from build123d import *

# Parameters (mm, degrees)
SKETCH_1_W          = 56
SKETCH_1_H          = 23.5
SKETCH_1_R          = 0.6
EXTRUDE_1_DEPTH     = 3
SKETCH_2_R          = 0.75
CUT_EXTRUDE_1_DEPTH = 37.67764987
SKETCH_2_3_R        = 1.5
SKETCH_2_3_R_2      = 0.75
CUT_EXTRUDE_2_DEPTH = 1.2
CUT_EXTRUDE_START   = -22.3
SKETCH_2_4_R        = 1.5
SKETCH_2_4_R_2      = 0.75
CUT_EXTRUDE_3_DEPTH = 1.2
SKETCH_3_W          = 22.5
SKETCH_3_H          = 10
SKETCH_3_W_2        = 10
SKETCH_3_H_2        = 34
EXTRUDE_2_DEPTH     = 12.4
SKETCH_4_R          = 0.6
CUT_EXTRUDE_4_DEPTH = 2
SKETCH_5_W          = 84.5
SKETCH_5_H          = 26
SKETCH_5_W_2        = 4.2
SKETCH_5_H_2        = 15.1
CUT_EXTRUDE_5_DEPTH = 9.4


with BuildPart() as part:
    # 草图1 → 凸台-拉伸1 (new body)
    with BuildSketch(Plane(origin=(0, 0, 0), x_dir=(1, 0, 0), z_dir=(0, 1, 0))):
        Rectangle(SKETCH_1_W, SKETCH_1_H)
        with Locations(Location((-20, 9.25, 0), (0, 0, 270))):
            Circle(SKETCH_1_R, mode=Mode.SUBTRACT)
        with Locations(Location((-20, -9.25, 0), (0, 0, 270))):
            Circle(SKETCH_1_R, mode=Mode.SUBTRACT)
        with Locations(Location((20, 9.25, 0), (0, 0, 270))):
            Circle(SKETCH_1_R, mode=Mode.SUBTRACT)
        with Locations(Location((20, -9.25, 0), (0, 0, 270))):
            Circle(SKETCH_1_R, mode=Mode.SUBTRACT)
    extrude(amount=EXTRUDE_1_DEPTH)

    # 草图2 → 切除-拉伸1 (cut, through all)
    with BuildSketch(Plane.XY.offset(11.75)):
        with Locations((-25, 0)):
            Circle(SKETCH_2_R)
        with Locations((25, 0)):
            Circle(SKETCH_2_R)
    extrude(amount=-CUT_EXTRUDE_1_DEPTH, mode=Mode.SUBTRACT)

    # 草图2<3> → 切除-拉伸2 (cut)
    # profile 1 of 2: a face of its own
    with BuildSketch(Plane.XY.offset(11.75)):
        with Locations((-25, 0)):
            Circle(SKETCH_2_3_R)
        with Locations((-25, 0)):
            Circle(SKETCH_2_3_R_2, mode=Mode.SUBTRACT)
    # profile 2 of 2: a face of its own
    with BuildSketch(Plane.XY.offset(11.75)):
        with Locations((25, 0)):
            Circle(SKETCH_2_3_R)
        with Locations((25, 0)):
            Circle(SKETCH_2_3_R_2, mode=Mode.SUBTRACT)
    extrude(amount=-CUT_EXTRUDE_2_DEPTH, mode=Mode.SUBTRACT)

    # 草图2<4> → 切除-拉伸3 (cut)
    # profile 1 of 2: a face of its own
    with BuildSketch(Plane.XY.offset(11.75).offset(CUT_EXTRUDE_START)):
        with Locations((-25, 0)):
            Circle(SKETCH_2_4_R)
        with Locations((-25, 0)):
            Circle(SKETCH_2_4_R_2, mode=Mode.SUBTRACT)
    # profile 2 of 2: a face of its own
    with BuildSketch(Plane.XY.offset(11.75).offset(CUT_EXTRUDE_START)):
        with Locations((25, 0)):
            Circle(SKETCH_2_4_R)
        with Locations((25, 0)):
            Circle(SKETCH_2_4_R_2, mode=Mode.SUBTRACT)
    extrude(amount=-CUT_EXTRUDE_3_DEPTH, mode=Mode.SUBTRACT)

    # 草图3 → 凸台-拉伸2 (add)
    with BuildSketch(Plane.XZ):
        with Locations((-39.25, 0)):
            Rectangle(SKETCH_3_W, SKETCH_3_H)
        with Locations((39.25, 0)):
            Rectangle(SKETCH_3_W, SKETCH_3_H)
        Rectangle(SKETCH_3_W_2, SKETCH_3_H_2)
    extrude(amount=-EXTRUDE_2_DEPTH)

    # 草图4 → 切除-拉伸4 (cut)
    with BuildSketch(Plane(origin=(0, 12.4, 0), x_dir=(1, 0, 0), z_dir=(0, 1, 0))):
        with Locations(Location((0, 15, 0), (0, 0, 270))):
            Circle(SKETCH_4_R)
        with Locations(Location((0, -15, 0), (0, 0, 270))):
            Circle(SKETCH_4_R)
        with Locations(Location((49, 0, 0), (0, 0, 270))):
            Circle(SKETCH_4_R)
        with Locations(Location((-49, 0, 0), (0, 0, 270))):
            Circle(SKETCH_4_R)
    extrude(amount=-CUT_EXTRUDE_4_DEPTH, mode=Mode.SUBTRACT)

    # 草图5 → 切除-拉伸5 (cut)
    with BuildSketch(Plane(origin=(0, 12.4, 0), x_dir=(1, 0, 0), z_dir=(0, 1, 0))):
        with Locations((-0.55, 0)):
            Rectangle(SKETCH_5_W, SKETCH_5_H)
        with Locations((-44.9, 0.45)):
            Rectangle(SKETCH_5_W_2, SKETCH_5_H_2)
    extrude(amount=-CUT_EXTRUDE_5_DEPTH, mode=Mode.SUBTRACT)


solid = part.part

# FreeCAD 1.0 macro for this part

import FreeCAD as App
import Part
import Sketcher
Q = App.Units.Quantity

doc = App.newDocument("Part")
params = doc.addObject("Spreadsheet::Sheet", "Params")
for row, (alias, value) in enumerate([
    ("sketch1_diameter", "1.2 mm"),
    ("sketch1_width", "56 mm"),
    ("sketch1_height", "23.5 mm"),
    ("pad1_length", "3 mm"),
    ("sketch2_diameter", "1.5 mm"),
    ("sketch3_diameter", "3 mm"),
    ("sketch3_diameter2", "1.5 mm"),
    ("pocket2_length", "1.2 mm"),
    ("sketch4_diameter", "3 mm"),
    ("sketch4_diameter2", "1.5 mm"),
    ("pocket3_length", "1.2 mm"),
    ("sketch5_width", "10 mm"),
    ("sketch5_height", "34 mm"),
    ("sketch5_width2", "22.5 mm"),
    ("pad2_length", "12.4 mm"),
    ("sketch6_diameter", "1.2 mm"),
    ("pocket4_length", "2 mm"),
    ("sketch7_height", "26 mm"),
    ("sketch7_height2", "5 mm"),
    ("sketch7_width", "84.5 mm"),
    ("sketch7_width2", "4.2 mm"),
    ("sketch7_height3", "5.9 mm"),
    ("pocket5_length", "9.4 mm"),
], start=1):
    params.set(f"A{row}", alias)
    params.set(f"B{row}", "=" + value)
    params.setAlias(f"B{row}", alias)

body = doc.addObject("PartDesign::Body", "Body")

# Sketch on XZ plane
sketch1 = body.newObject("Sketcher::SketchObject", "Sketch")
sketch1.AttachmentSupport = (doc.getObject("XZ_Plane"), [""])
sketch1.MapMode = "FlatFace"
sketch1.addGeometry(Part.LineSegment(App.Vector(-28, -11.8, 0), App.Vector(-28, 11.8, 0)), False)
sketch1.addGeometry(Part.LineSegment(App.Vector(-28, 11.8, 0), App.Vector(28, 11.8, 0)), False)
sketch1.addGeometry(Part.LineSegment(App.Vector(28, 11.8, 0), App.Vector(28, -11.8, 0)), False)
sketch1.addGeometry(Part.LineSegment(App.Vector(28, -11.8, 0), App.Vector(-28, -11.8, 0)), False)
sketch1.addGeometry(Part.Circle(App.Vector(-20, 9.2, 0), App.Vector(0, 0, 1), 0.6), False)
sketch1.addGeometry(Part.Circle(App.Vector(20, 9.2, 0), App.Vector(0, 0, 1), 0.6), False)
sketch1.addGeometry(Part.Circle(App.Vector(-20, -9.2, 0), App.Vector(0, 0, 1), 0.6), False)
sketch1.addGeometry(Part.Circle(App.Vector(20, -9.2, 0), App.Vector(0, 0, 1), 0.6), False)
sketch1.addConstraint(Sketcher.Constraint("Coincident", 0, 2, 1, 1))
sketch1.addConstraint(Sketcher.Constraint("Coincident", 1, 2, 2, 1))
sketch1.addConstraint(Sketcher.Constraint("Coincident", 2, 2, 3, 1))
sketch1.addConstraint(Sketcher.Constraint("Coincident", 3, 2, 0, 1))
sketch1.addConstraint(Sketcher.Constraint("Vertical", 0))
sketch1.addConstraint(Sketcher.Constraint("Horizontal", 1))
sketch1.addConstraint(Sketcher.Constraint("Vertical", 2))
sketch1.addConstraint(Sketcher.Constraint("Horizontal", 3))
sketch1.addConstraint(Sketcher.Constraint("Equal", 4, 5))
sketch1.addConstraint(Sketcher.Constraint("Equal", 5, 6))
sketch1.addConstraint(Sketcher.Constraint("Equal", 6, 7))
sketch1.addConstraint(Sketcher.Constraint("Symmetric", 5, 3, 6, 3, -1, 1))
sketch1.addConstraint(Sketcher.Constraint("Symmetric", 4, 3, 7, 3, -1, 1))
sketch1.addConstraint(Sketcher.Constraint("Symmetric", 0, 2, 2, 2, -1, 1))
sketch1.addConstraint(Sketcher.Constraint("Symmetric", 4, 3, 5, 3, -2))
sketch1.addConstraint(Sketcher.Constraint("Diameter", 4, Q("1.2 mm")))
sketch1.addConstraint(Sketcher.Constraint("DistanceX", 1, 1, 1, 2, Q("56 mm")))
sketch1.addConstraint(Sketcher.Constraint("DistanceY", 0, 1, 0, 2, Q("23.5 mm")))
sketch1.addConstraint(Sketcher.Constraint("DistanceX", 4, 3, -1, 1, Q("20 mm")))
sketch1.addConstraint(Sketcher.Constraint("DistanceY", 6, 3, 0, 2, Q("21 mm")))
sketch1.setExpression("Constraints[15]", "Params.sketch1_diameter")
sketch1.setExpression("Constraints[16]", "Params.sketch1_width")
sketch1.setExpression("Constraints[17]", "Params.sketch1_height")
pad1 = body.newObject("PartDesign::Pad", "Pad")
pad1.Profile = sketch1
pad1.setExpression("Length", "Params.pad1_length")
pad1.Reversed = True

# Sketch on XY plane
sketch2 = body.newObject("Sketcher::SketchObject", "Sketch001")
sketch2.AttachmentSupport = (doc.getObject("XY_Plane"), [""])
sketch2.MapMode = "FlatFace"
sketch2.AttachmentOffset = App.Placement(App.Vector(0, 0, 11.75), App.Rotation())
sketch2.addGeometry(Part.Circle(App.Vector(-25, 0, 0), App.Vector(0, 0, 1), 0.8), False)
sketch2.addGeometry(Part.Circle(App.Vector(25, 0, 0), App.Vector(0, 0, 1), 0.8), False)
sketch2.addConstraint(Sketcher.Constraint("Equal", 0, 1))
sketch2.addConstraint(Sketcher.Constraint("Symmetric", 0, 3, 1, 3, -1, 1))
sketch2.addConstraint(Sketcher.Constraint("PointOnObject", 0, 3, -1))
sketch2.addConstraint(Sketcher.Constraint("Diameter", 0, Q("1.5 mm")))
sketch2.addConstraint(Sketcher.Constraint("DistanceX", 0, 3, -1, 1, Q("25 mm")))
sketch2.setExpression("Constraints[3]", "Params.sketch2_diameter")
pocket1 = body.newObject("PartDesign::Pocket", "Pocket")
pocket1.Profile = sketch2
pocket1.Type = "ThroughAll"

# Sketch on XY plane
sketch3 = body.newObject("Sketcher::SketchObject", "Sketch002")
sketch3.AttachmentSupport = (doc.getObject("XY_Plane"), [""])
sketch3.MapMode = "FlatFace"
sketch3.AttachmentOffset = App.Placement(App.Vector(0, 0, 11.75), App.Rotation())
sketch3.addGeometry(Part.Circle(App.Vector(-25, 0, 0), App.Vector(0, 0, 1), 1.5), False)
sketch3.addGeometry(Part.Circle(App.Vector(-25, 0, 0), App.Vector(0, 0, 1), 0.8), False)
sketch3.addGeometry(Part.Circle(App.Vector(25, 0, 0), App.Vector(0, 0, 1), 1.5), False)
sketch3.addGeometry(Part.Circle(App.Vector(25, 0, 0), App.Vector(0, 0, 1), 0.8), False)
sketch3.addConstraint(Sketcher.Constraint("Coincident", 1, 3, 0, 3))
sketch3.addConstraint(Sketcher.Constraint("Coincident", 3, 3, 2, 3))
sketch3.addConstraint(Sketcher.Constraint("Equal", 0, 2))
sketch3.addConstraint(Sketcher.Constraint("Equal", 1, 3))
sketch3.addConstraint(Sketcher.Constraint("Symmetric", 0, 3, 2, 3, -1, 1))
sketch3.addConstraint(Sketcher.Constraint("PointOnObject", 0, 3, -1))
sketch3.addConstraint(Sketcher.Constraint("Diameter", 0, Q("3 mm")))
sketch3.addConstraint(Sketcher.Constraint("Diameter", 1, Q("1.5 mm")))
sketch3.addConstraint(Sketcher.Constraint("DistanceX", 0, 3, -1, 1, Q("25 mm")))
sketch3.setExpression("Constraints[6]", "Params.sketch3_diameter")
sketch3.setExpression("Constraints[7]", "Params.sketch3_diameter2")
pocket2 = body.newObject("PartDesign::Pocket", "Pocket001")
pocket2.Profile = sketch3
pocket2.setExpression("Length", "Params.pocket2_length")

# Sketch on XY plane
sketch4 = body.newObject("Sketcher::SketchObject", "Sketch003")
sketch4.AttachmentSupport = (doc.getObject("XY_Plane"), [""])
sketch4.MapMode = "FlatFace"
sketch4.AttachmentOffset = App.Placement(App.Vector(0, 0, -10.55), App.Rotation())
sketch4.addGeometry(Part.Circle(App.Vector(-25, 0, 0), App.Vector(0, 0, 1), 1.5), False)
sketch4.addGeometry(Part.Circle(App.Vector(-25, 0, 0), App.Vector(0, 0, 1), 0.8), False)
sketch4.addGeometry(Part.Circle(App.Vector(25, 0, 0), App.Vector(0, 0, 1), 1.5), False)
sketch4.addGeometry(Part.Circle(App.Vector(25, 0, 0), App.Vector(0, 0, 1), 0.8), False)
sketch4.addConstraint(Sketcher.Constraint("Coincident", 1, 3, 0, 3))
sketch4.addConstraint(Sketcher.Constraint("Coincident", 3, 3, 2, 3))
sketch4.addConstraint(Sketcher.Constraint("Equal", 0, 2))
sketch4.addConstraint(Sketcher.Constraint("Equal", 1, 3))
sketch4.addConstraint(Sketcher.Constraint("Symmetric", 0, 3, 2, 3, -1, 1))
sketch4.addConstraint(Sketcher.Constraint("PointOnObject", 0, 3, -1))
sketch4.addConstraint(Sketcher.Constraint("Diameter", 0, Q("3 mm")))
sketch4.addConstraint(Sketcher.Constraint("Diameter", 1, Q("1.5 mm")))
sketch4.addConstraint(Sketcher.Constraint("DistanceX", 0, 3, -1, 1, Q("25 mm")))
sketch4.setExpression("Constraints[6]", "Params.sketch4_diameter")
sketch4.setExpression("Constraints[7]", "Params.sketch4_diameter2")
pocket3 = body.newObject("PartDesign::Pocket", "Pocket002")
pocket3.Profile = sketch4
pocket3.setExpression("Length", "Params.pocket3_length")

# Sketch on XZ plane
sketch5 = body.newObject("Sketcher::SketchObject", "Sketch004")
sketch5.AttachmentSupport = (doc.getObject("XZ_Plane"), [""])
sketch5.MapMode = "FlatFace"
sketch5.addGeometry(Part.LineSegment(App.Vector(-50, 5, 0), App.Vector(-50, -5, 0)), False)
sketch5.addGeometry(Part.LineSegment(App.Vector(-50, -5, 0), App.Vector(-28, -5, 0)), False)
sketch5.addGeometry(Part.LineSegment(App.Vector(-28, -5, 0), App.Vector(-28, 5, 0)), False)
sketch5.addGeometry(Part.LineSegment(App.Vector(-28, 5, 0), App.Vector(-50, 5, 0)), False)
sketch5.addGeometry(Part.LineSegment(App.Vector(28, 5, 0), App.Vector(28, -5, 0)), False)
sketch5.addGeometry(Part.LineSegment(App.Vector(28, -5, 0), App.Vector(50, -5, 0)), False)
sketch5.addGeometry(Part.LineSegment(App.Vector(50, -5, 0), App.Vector(50, 5, 0)), False)
sketch5.addGeometry(Part.LineSegment(App.Vector(50, 5, 0), App.Vector(28, 5, 0)), False)
sketch5.addGeometry(Part.LineSegment(App.Vector(-5, 17, 0), App.Vector(-5, -17, 0)), False)
sketch5.addGeometry(Part.LineSegment(App.Vector(-5, -17, 0), App.Vector(5, -17, 0)), False)
sketch5.addGeometry(Part.LineSegment(App.Vector(5, -17, 0), App.Vector(5, 17, 0)), False)
sketch5.addGeometry(Part.LineSegment(App.Vector(5, 17, 0), App.Vector(-5, 17, 0)), False)
sketch5.addConstraint(Sketcher.Constraint("Coincident", 0, 2, 1, 1))
sketch5.addConstraint(Sketcher.Constraint("Coincident", 1, 2, 2, 1))
sketch5.addConstraint(Sketcher.Constraint("Coincident", 2, 2, 3, 1))
sketch5.addConstraint(Sketcher.Constraint("Coincident", 3, 2, 0, 1))
sketch5.addConstraint(Sketcher.Constraint("Coincident", 4, 2, 5, 1))
sketch5.addConstraint(Sketcher.Constraint("Coincident", 5, 2, 6, 1))
sketch5.addConstraint(Sketcher.Constraint("Coincident", 6, 2, 7, 1))
sketch5.addConstraint(Sketcher.Constraint("Coincident", 7, 2, 4, 1))
sketch5.addConstraint(Sketcher.Constraint("Coincident", 8, 2, 9, 1))
sketch5.addConstraint(Sketcher.Constraint("Coincident", 9, 2, 10, 1))
sketch5.addConstraint(Sketcher.Constraint("Coincident", 10, 2, 11, 1))
sketch5.addConstraint(Sketcher.Constraint("Coincident", 11, 2, 8, 1))
sketch5.addConstraint(Sketcher.Constraint("Vertical", 0))
sketch5.addConstraint(Sketcher.Constraint("Horizontal", 1))
sketch5.addConstraint(Sketcher.Constraint("Vertical", 2))
sketch5.addConstraint(Sketcher.Constraint("Horizontal", 3))
sketch5.addConstraint(Sketcher.Constraint("Vertical", 4))
sketch5.addConstraint(Sketcher.Constraint("Horizontal", 5))
sketch5.addConstraint(Sketcher.Constraint("Vertical", 6))
sketch5.addConstraint(Sketcher.Constraint("Horizontal", 7))
sketch5.addConstraint(Sketcher.Constraint("Vertical", 8))
sketch5.addConstraint(Sketcher.Constraint("Horizontal", 9))
sketch5.addConstraint(Sketcher.Constraint("Vertical", 10))
sketch5.addConstraint(Sketcher.Constraint("Horizontal", 11))
sketch5.addConstraint(Sketcher.Constraint("Symmetric", 2, 2, 4, 2, -1, 1))
sketch5.addConstraint(Sketcher.Constraint("Symmetric", 0, 2, 6, 2, -1, 1))
sketch5.addConstraint(Sketcher.Constraint("Symmetric", 8, 2, 10, 2, -1, 1))
sketch5.addConstraint(Sketcher.Constraint("Horizontal", 1, 2, 4, 2))
sketch5.addConstraint(Sketcher.Constraint("Equal", 11, 0))
sketch5.addConstraint(Sketcher.Constraint("DistanceX", 9, 1, 9, 2, Q("10 mm")))
sketch5.addConstraint(Sketcher.Constraint("DistanceY", 8, 2, 8, 1, Q("34 mm")))
sketch5.addConstraint(Sketcher.Constraint("DistanceX", 1, 1, 1, 2, Q("22.5 mm")))
sketch5.addConstraint(Sketcher.Constraint("DistanceX", 1, 2, -1, 1, Q("28 mm")))
sketch5.setExpression("Constraints[29]", "Params.sketch5_width")
sketch5.setExpression("Constraints[30]", "Params.sketch5_height")
sketch5.setExpression("Constraints[31]", "Params.sketch5_width2")
pad2 = body.newObject("PartDesign::Pad", "Pad001")
pad2.Profile = sketch5
pad2.setExpression("Length", "Params.pad2_length")
pad2.Reversed = True

# Sketch on XZ plane
sketch6 = body.newObject("Sketcher::SketchObject", "Sketch005")
sketch6.AttachmentSupport = (doc.getObject("XZ_Plane"), [""])
sketch6.MapMode = "FlatFace"
sketch6.AttachmentOffset = App.Placement(App.Vector(0, 0, -12.4), App.Rotation())
sketch6.addGeometry(Part.Circle(App.Vector(0, -15, 0), App.Vector(0, 0, 1), 0.6), False)
sketch6.addGeometry(Part.Circle(App.Vector(0, 15, 0), App.Vector(0, 0, 1), 0.6), False)
sketch6.addGeometry(Part.Circle(App.Vector(49, 0, 0), App.Vector(0, 0, 1), 0.6), False)
sketch6.addGeometry(Part.Circle(App.Vector(-49, 0, 0), App.Vector(0, 0, 1), 0.6), False)
sketch6.addConstraint(Sketcher.Constraint("Equal", 0, 1))
sketch6.addConstraint(Sketcher.Constraint("Equal", 1, 2))
sketch6.addConstraint(Sketcher.Constraint("Equal", 2, 3))
sketch6.addConstraint(Sketcher.Constraint("Symmetric", 0, 3, 1, 3, -1, 1))
sketch6.addConstraint(Sketcher.Constraint("Symmetric", 2, 3, 3, 3, -1, 1))
sketch6.addConstraint(Sketcher.Constraint("PointOnObject", 0, 3, -2))
sketch6.addConstraint(Sketcher.Constraint("PointOnObject", 2, 3, -1))
sketch6.addConstraint(Sketcher.Constraint("Diameter", 0, Q("1.2 mm")))
sketch6.addConstraint(Sketcher.Constraint("DistanceY", 0, 3, -1, 1, Q("15 mm")))
sketch6.addConstraint(Sketcher.Constraint("DistanceX", -1, 1, 2, 3, Q("49 mm")))
sketch6.setExpression("Constraints[7]", "Params.sketch6_diameter")
pocket4 = body.newObject("PartDesign::Pocket", "Pocket003")
pocket4.Profile = sketch6
pocket4.setExpression("Length", "Params.pocket4_length")
pocket4.Reversed = True

# Sketch on XZ plane
sketch7 = body.newObject("Sketcher::SketchObject", "Sketch006")
sketch7.AttachmentSupport = (doc.getObject("XZ_Plane"), [""])
sketch7.MapMode = "FlatFace"
sketch7.AttachmentOffset = App.Placement(App.Vector(0, 0, -12.4), App.Rotation())
sketch7.addGeometry(Part.LineSegment(App.Vector(-42.8, 7.1, 0), App.Vector(-42.8, 13, 0)), False)
sketch7.addGeometry(Part.LineSegment(App.Vector(-42.8, 13, 0), App.Vector(41.7, 13, 0)), False)
sketch7.addGeometry(Part.LineSegment(App.Vector(41.7, 13, 0), App.Vector(41.7, -13, 0)), False)
sketch7.addGeometry(Part.LineSegment(App.Vector(41.7, -13, 0), App.Vector(-42.8, -13, 0)), False)
sketch7.addGeometry(Part.LineSegment(App.Vector(-42.8, -13, 0), App.Vector(-42.8, -8, 0)), False)
sketch7.addGeometry(Part.LineSegment(App.Vector(-42.8, -8, 0), App.Vector(-47, -8, 0)), False)
sketch7.addGeometry(Part.LineSegment(App.Vector(-47, -8, 0), App.Vector(-47, 7.1, 0)), False)
sketch7.addGeometry(Part.LineSegment(App.Vector(-47, 7.1, 0), App.Vector(-42.8, 7.1, 0)), False)
sketch7.addConstraint(Sketcher.Constraint("Coincident", 0, 2, 1, 1))
sketch7.addConstraint(Sketcher.Constraint("Coincident", 1, 2, 2, 1))
sketch7.addConstraint(Sketcher.Constraint("Coincident", 2, 2, 3, 1))
sketch7.addConstraint(Sketcher.Constraint("Coincident", 3, 2, 4, 1))
sketch7.addConstraint(Sketcher.Constraint("Coincident", 4, 2, 5, 1))
sketch7.addConstraint(Sketcher.Constraint("Coincident", 5, 2, 6, 1))
sketch7.addConstraint(Sketcher.Constraint("Coincident", 6, 2, 7, 1))
sketch7.addConstraint(Sketcher.Constraint("Coincident", 7, 2, 0, 1))
sketch7.addConstraint(Sketcher.Constraint("Vertical", 0))
sketch7.addConstraint(Sketcher.Constraint("Horizontal", 1))
sketch7.addConstraint(Sketcher.Constraint("Vertical", 2))
sketch7.addConstraint(Sketcher.Constraint("Horizontal", 3))
sketch7.addConstraint(Sketcher.Constraint("Vertical", 4))
sketch7.addConstraint(Sketcher.Constraint("Horizontal", 5))
sketch7.addConstraint(Sketcher.Constraint("Vertical", 6))
sketch7.addConstraint(Sketcher.Constraint("Horizontal", 7))
sketch7.addConstraint(Sketcher.Constraint("Symmetric", 0, 2, 3, 2, -1))
sketch7.addConstraint(Sketcher.Constraint("DistanceY", 2, 2, 2, 1, Q("26 mm")))
sketch7.addConstraint(Sketcher.Constraint("DistanceY", 4, 1, 4, 2, Q("5 mm")))
sketch7.addConstraint(Sketcher.Constraint("DistanceX", 1, 1, 1, 2, Q("84.5 mm")))
sketch7.addConstraint(Sketcher.Constraint("DistanceX", 5, 2, 5, 1, Q("4.2 mm")))
sketch7.addConstraint(Sketcher.Constraint("DistanceY", 0, 1, 0, 2, Q("5.9 mm")))
sketch7.addConstraint(Sketcher.Constraint("DistanceX", 5, 2, -1, 1, Q("47 mm")))
sketch7.setExpression("Constraints[17]", "Params.sketch7_height")
sketch7.setExpression("Constraints[18]", "Params.sketch7_height2")
sketch7.setExpression("Constraints[19]", "Params.sketch7_width")
sketch7.setExpression("Constraints[20]", "Params.sketch7_width2")
sketch7.setExpression("Constraints[21]", "Params.sketch7_height3")
pocket5 = body.newObject("PartDesign::Pocket", "Pocket004")
pocket5.Profile = sketch7
pocket5.setExpression("Length", "Params.pocket5_length")
pocket5.Reversed = True

doc.recompute()
